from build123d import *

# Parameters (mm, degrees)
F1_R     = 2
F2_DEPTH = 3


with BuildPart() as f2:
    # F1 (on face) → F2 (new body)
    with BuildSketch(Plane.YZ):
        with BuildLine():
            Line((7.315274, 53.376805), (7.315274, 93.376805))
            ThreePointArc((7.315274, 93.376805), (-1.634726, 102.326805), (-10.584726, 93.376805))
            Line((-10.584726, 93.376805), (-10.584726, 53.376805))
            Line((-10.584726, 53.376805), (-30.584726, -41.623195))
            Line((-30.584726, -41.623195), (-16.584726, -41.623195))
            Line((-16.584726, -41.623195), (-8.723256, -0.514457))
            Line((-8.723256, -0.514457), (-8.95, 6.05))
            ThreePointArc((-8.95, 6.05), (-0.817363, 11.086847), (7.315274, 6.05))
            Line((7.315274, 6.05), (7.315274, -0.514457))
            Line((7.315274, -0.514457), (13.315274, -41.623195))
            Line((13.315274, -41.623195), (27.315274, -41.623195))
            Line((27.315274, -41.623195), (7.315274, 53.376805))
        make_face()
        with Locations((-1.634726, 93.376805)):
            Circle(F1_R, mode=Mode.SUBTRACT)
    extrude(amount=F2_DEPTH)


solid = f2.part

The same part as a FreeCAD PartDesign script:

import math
import FreeCAD as App
import Part
import Sketcher

doc = App.newDocument("Part")
body = doc.addObject("PartDesign::Body", "Body")

# Sketch on YZ plane
sketch1 = body.newObject("Sketcher::SketchObject", "Sketch")
sketch1.AttachmentSupport = (doc.getObject("YZ_Plane"), [""])
sketch1.MapMode = "FlatFace"
sketch1.addGeometry(Part.LineSegment(App.Vector(7.3, 53.4, 0), App.Vector(7.3, 93.4, 0)), False)
sketch1.addGeometry(Part.ArcOfCircle(Part.Circle(App.Vector(-1.6, 93.4, 0), App.Vector(0, 0, 1), 8.9), math.radians(0), math.radians(180)), False)
sketch1.addGeometry(Part.LineSegment(App.Vector(-10.6, 93.4, 0), App.Vector(-10.6, 53.4, 0)), False)
sketch1.addGeometry(Part.LineSegment(App.Vector(-10.6, 53.4, 0), App.Vector(-30.6, -41.6, 0)), False)
sketch1.addGeometry(Part.LineSegment(App.Vector(-30.6, -41.6, 0), App.Vector(-16.6, -41.6, 0)), False)
sketch1.addGeometry(Part.LineSegment(App.Vector(-16.6, -41.6, 0), App.Vector(-8.7, -0.5, 0)), False)
sketch1.addGeometry(Part.LineSegment(App.Vector(-8.7, -0.5, 0), App.Vector(-8.9, 6, 0)), False)
sketch1.addGeometry(Part.ArcOfCircle(Part.Circle(App.Vector(-0.8, 2, 0), App.Vector(0, 0, 1), 9.1), math.radians(26), math.radians(154)), False)
sketch1.addGeometry(Part.LineSegment(App.Vector(7.3, 6, 0), App.Vector(7.3, -0.5, 0)), False)
sketch1.addGeometry(Part.LineSegment(App.Vector(7.3, -0.5, 0), App.Vector(13.3, -41.6, 0)), False)
sketch1.addGeometry(Part.LineSegment(App.Vector(13.3, -41.6, 0), App.Vector(27.3, -41.6, 0)), False)
sketch1.addGeometry(Part.LineSegment(App.Vector(27.3, -41.6, 0), App.Vector(7.3, 53.4, 0)), False)
sketch1.addGeometry(Part.Circle(App.Vector(-1.6, 93.4, 0), App.Vector(0, 0, 1), 2), False)
sketch1.addConstraint(Sketcher.Constraint("Tangent", 0, 2, 1, 1))
sketch1.addConstraint(Sketcher.Constraint("Tangent", 1, 2, 2, 1))
sketch1.addConstraint(Sketcher.Constraint("Coincident", 2, 2, 3, 1))
sketch1.addConstraint(Sketcher.Constraint("Coincident", 3, 2, 4, 1))
sketch1.addConstraint(Sketcher.Constraint("Coincident", 4, 2, 5, 1))
sketch1.addConstraint(Sketcher.Constraint("Coincident", 5, 2, 6, 1))
sketch1.addConstraint(Sketcher.Constraint("Coincident", 6, 2, 7, 2))
sketch1.addConstraint(Sketcher.Constraint("Coincident", 7, 1, 8, 1))
sketch1.addConstraint(Sketcher.Constraint("Coincident", 8, 2, 9, 1))
sketch1.addConstraint(Sketcher.Constraint("Coincident", 9, 2, 10, 1))
sketch1.addConstraint(Sketcher.Constraint("Coincident", 10, 2, 11, 1))
sketch1.addConstraint(Sketcher.Constraint("Coincident", 11, 2, 0, 1))
sketch1.addConstraint(Sketcher.Constraint("Vertical", 0))
sketch1.addConstraint(Sketcher.Constraint("Vertical", 2))
sketch1.addConstraint(Sketcher.Constraint("Horizontal", 4))
sketch1.addConstraint(Sketcher.Constraint("Vertical", 8))
sketch1.addConstraint(Sketcher.Constraint("Horizontal", 10))
sketch1.addConstraint(Sketcher.Constraint("Coincident", 12, 3, 1, 3))
sketch1.addConstraint(Sketcher.Constraint("Horizontal", 6, 2, 7, 1))
sketch1.addConstraint(Sketcher.Constraint("Horizontal", 5, 2, 8, 2))
sketch1.addConstraint(Sketcher.Constraint("Horizontal", 4, 2, 9, 2))
sketch1.addConstraint(Sketcher.Constraint("Horizontal", 2, 2, 11, 2))
sketch1.addConstraint(Sketcher.Constraint("Vertical", 0, 2, 7, 1))
sketch1.addConstraint(Sketcher.Constraint("Equal", 4, 10))
sketch1.addConstraint(Sketcher.Constraint("Equal", 3, 11))
sketch1.addConstraint(Sketcher.Constraint("Diameter", 12, 4.0))
sketch1.addConstraint(Sketcher.Constraint("DistanceX", 4, 1, 4, 2, 14.0))
sketch1.addConstraint(Sketcher.Constraint("DistanceY", 0, 1, 0, 2, 40.0))
sketch1.addConstraint(Sketcher.Constraint("Radius", 1, 8.95))
sketch1.addConstraint(Sketcher.Constraint("DistanceX", 3, 2, 2, 2, 20.0))
sketch1.addConstraint(Sketcher.Constraint("DistanceY", 3, 2, 2, 2, 95.0))
sketch1.addConstraint(Sketcher.Constraint("DistanceX", 6, 2, -1, 1, 8.95))
sketch1.addConstraint(Sketcher.Constraint("DistanceY", -1, 1, 6, 2, 6.05))
sketch1.addConstraint(Sketcher.Constraint("Radius", 7, 9.084017))
sketch1.addConstraint(Sketcher.Constraint("Distance", 6, 6.568372))
sketch1.addConstraint(Sketcher.Constraint("DistanceY", 8, 2, 8, 1, 6.564457))
sketch1.addConstraint(Sketcher.Constraint("DistanceY", -1, 1, 7, 3, 2.00283))
sketch1.addConstraint(Sketcher.Constraint("DistanceY", 4, 2, 5, 2, 41.108738))
pad1 = body.newObject("PartDesign::Pad", "Pad")
pad1.Profile = sketch1
pad1.Length = 3

doc.recompute()
